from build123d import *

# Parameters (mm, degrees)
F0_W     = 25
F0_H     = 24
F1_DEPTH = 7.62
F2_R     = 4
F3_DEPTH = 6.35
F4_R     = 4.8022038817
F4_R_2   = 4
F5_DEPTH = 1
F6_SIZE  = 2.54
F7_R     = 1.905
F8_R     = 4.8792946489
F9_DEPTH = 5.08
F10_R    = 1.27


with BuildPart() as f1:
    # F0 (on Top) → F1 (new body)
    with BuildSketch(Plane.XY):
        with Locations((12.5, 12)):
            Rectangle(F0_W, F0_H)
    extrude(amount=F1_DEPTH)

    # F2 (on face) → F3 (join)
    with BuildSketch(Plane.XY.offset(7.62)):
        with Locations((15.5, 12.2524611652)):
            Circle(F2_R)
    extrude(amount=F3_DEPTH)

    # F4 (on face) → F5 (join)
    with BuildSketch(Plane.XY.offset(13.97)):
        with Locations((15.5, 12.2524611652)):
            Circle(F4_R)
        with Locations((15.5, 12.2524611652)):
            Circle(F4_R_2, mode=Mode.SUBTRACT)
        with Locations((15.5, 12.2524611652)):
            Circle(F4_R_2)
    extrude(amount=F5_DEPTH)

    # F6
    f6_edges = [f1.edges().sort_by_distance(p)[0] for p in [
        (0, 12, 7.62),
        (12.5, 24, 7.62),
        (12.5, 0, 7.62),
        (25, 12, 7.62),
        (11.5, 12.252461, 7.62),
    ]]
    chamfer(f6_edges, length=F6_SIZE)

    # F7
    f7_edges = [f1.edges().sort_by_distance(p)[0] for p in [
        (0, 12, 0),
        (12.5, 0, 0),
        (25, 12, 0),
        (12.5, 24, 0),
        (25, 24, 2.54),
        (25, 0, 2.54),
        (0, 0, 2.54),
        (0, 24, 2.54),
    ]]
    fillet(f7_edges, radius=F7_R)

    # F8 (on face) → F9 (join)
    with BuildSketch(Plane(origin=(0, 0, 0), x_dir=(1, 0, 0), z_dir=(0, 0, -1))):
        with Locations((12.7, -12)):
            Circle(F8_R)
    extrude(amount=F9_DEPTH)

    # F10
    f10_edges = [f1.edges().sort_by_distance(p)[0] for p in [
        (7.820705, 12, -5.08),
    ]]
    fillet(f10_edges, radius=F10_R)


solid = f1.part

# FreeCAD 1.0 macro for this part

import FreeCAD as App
import Part
import Sketcher
from FreeCAD import Vector
Q = App.Units.Quantity


def edges_at(feature, points):
    """Names of the edges that pass closest to the given points."""
    edges = feature.Shape.Edges
    near = lambda p: min(range(len(edges)), key=lambda i: edges[i].distToShape(Part.Vertex(*p))[0])
    return sorted({f"Edge{near(p) + 1}" for p in points})

doc = App.newDocument("Part")
body = doc.addObject("PartDesign::Body", "Body")

# Sketch on XY plane
sketch1 = body.newObject("Sketcher::SketchObject", "Sketch")
sketch1.AttachmentSupport = (doc.getObject("XY_Plane"), [""])
sketch1.MapMode = "FlatFace"
sketch1.addGeometry([
    Part.LineSegment(Vector(0, 24, 0), Vector(0, 0, 0)),
    Part.LineSegment(Vector(0, 0, 0), Vector(25, 0, 0)),
    Part.LineSegment(Vector(25, 0, 0), Vector(25, 24, 0)),
    Part.LineSegment(Vector(25, 24, 0), Vector(0, 24, 0)),
], False)
sketch1.addConstraint([
    Sketcher.Constraint("Coincident", 0, 2, 1, 1),
    Sketcher.Constraint("Coincident", 1, 2, 2, 1),
    Sketcher.Constraint("Coincident", 2, 2, 3, 1),
    Sketcher.Constraint("Coincident", 3, 2, 0, 1),
    Sketcher.Constraint("Vertical", 0),
    Sketcher.Constraint("Horizontal", 1),
    Sketcher.Constraint("Vertical", 2),
    Sketcher.Constraint("Horizontal", 3),
    Sketcher.Constraint("Coincident", 0, 2, -1, 1),
    Sketcher.Constraint("DistanceX", 1, 1, 1, 2, 25.0),
    Sketcher.Constraint("DistanceY", 0, 2, 0, 1, 24.0),
])
pad1 = body.newObject("PartDesign::Pad", "Pad")
pad1.Profile = sketch1
pad1.Length = Q("0.3 in")

# Sketch on XY plane
sketch2 = body.newObject("Sketcher::SketchObject", "Sketch001")
sketch2.AttachmentSupport = (doc.getObject("XY_Plane"), [""])
sketch2.MapMode = "FlatFace"
sketch2.AttachmentOffset = App.Placement(Vector(0, 0, 0.3 * 25.4), App.Rotation())
sketch2.addGeometry(Part.Circle(Vector(15.5, 12.252461, 0), Vector(0, 0, 1), 4), False)
sketch2.addConstraint([
    Sketcher.Constraint("Diameter", 0, 8.0),
    Sketcher.Constraint("DistanceX", -1, 1, 0, 3, 15.5),
    Sketcher.Constraint("DistanceY", -1, 1, 0, 3, 12.252461),
])
pad2 = body.newObject("PartDesign::Pad", "Pad001")
pad2.Profile = sketch2
pad2.Length = Q("0.25 in")

# Sketch on XY plane
sketch3 = body.newObject("Sketcher::SketchObject", "Sketch002")
sketch3.AttachmentSupport = (doc.getObject("XY_Plane"), [""])
sketch3.MapMode = "FlatFace"
sketch3.AttachmentOffset = App.Placement(Vector(0, 0, 0.55 * 25.4), App.Rotation())
sketch3.addGeometry(Part.Circle(Vector(15.5, 12.252461, 0), Vector(0, 0, 1), 4.802204), False)
sketch3.addConstraint([
    Sketcher.Constraint("Diameter", 0, 9.604408),
    Sketcher.Constraint("DistanceX", -1, 1, 0, 3, 15.5),
    Sketcher.Constraint("DistanceY", -1, 1, 0, 3, 12.252461),
])
pad3 = body.newObject("PartDesign::Pad", "Pad002")
pad3.Profile = sketch3
pad3.Length = 1
doc.recompute()

chamfer = body.newObject("PartDesign::Chamfer", "Chamfer")
chamfer.Base = (pad3, edges_at(pad3, [
    (0, 12, 7.62),
    (12.5, 24, 7.62),
    (12.5, 0, 7.62),
    (25, 12, 7.62),
    (11.5, 12.252, 7.62),
]))
chamfer.Size = Q("0.1 in")
doc.recompute()

fillet = body.newObject("PartDesign::Fillet", "Fillet")
fillet.Base = (chamfer, edges_at(chamfer, [
    (0, 12, 0),
    (12.5, 0, 0),
    (25, 12, 0),
    (12.5, 24, 0),
    (25, 24, 2.54),
    (25, 0, 2.54),
    (0, 0, 2.54),
    (0, 24, 2.54),
]))
fillet.Radius = Q("0.075 in")

# Sketch on XY plane
sketch4 = body.newObject("Sketcher::SketchObject", "Sketch003")
sketch4.AttachmentSupport = (doc.getObject("XY_Plane"), [""])
sketch4.MapMode = "FlatFace"
sketch4.addGeometry(Part.Circle(Vector(12.7, 12, 0), Vector(0, 0, 1), 4.879295), False)
sketch4.addConstraint([
    Sketcher.Constraint("DistanceX", -1, 1, 0, 3, Q("0.5 in")),
    Sketcher.Constraint("Diameter", 0, 9.758589),
    Sketcher.Constraint("DistanceY", -1, 1, 0, 3, 12.0),
])
pad4 = body.newObject("PartDesign::Pad", "Pad003")
pad4.Profile = sketch4
pad4.Length = Q("0.2 in")
pad4.Reversed = True
doc.recompute()

fillet2 = body.newObject("PartDesign::Fillet", "Fillet001")
fillet2.Base = (pad4, edges_at(pad4, [(7.821, 12, -5.08)]))
fillet2.Radius = Q("0.05 in")

doc.recompute()
